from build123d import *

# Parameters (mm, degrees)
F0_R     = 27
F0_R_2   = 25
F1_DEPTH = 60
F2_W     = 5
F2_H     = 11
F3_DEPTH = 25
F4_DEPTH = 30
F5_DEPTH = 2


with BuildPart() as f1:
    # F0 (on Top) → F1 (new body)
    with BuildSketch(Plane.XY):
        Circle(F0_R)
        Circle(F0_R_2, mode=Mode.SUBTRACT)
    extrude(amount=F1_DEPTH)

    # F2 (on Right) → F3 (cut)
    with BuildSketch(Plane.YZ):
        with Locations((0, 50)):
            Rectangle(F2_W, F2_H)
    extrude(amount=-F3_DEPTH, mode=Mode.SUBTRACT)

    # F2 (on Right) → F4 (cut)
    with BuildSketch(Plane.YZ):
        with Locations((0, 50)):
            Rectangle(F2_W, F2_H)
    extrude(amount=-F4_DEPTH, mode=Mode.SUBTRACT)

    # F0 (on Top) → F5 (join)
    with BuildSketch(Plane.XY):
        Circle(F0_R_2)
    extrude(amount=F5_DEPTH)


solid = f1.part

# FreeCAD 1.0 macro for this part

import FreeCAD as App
import Part
import Sketcher
Q = App.Units.Quantity


def add_polygon(sketch, points):
    """Adds a closed chain of lines whose ends are joined by coincident constraints."""
    first, n = sketch.GeometryCount, len(points)
    for a, b in zip(points, points[1:] + points[:1]):
        sketch.addGeometry(Part.LineSegment(App.Vector(*a, 0), App.Vector(*b, 0)), False)
    for i in range(n):
        sketch.addConstraint(Sketcher.Constraint("Coincident", first + i, 2, first + (i + 1) % n, 1))

doc = App.newDocument("Part")
body = doc.addObject("PartDesign::Body", "Body")

# Sketch on XY plane
sketch1 = body.newObject("Sketcher::SketchObject", "Sketch")
sketch1.AttachmentSupport = (doc.getObject("XY_Plane"), [""])
sketch1.MapMode = "FlatFace"
sketch1.addGeometry([
    Part.Circle(App.Vector(0, 0, 0), App.Vector(0, 0, 1), 27),
    Part.Circle(App.Vector(0, 0, 0), App.Vector(0, 0, 1), 25),
], False)
sketch1.addConstraint([
    Sketcher.Constraint("Coincident", 0, 3, -1, 1),
    Sketcher.Constraint("Coincident", 1, 3, -1, 1),
    Sketcher.Constraint("Diameter", 0, Q("54 mm")),
    Sketcher.Constraint("Diameter", 1, Q("50 mm")),
])
pad1 = body.newObject("PartDesign::Pad", "Pad")
pad1.Profile = sketch1
pad1.Length = 60

# Sketch on YZ plane
sketch2 = body.newObject("Sketcher::SketchObject", "Sketch001")
sketch2.AttachmentSupport = (doc.getObject("YZ_Plane"), [""])
sketch2.MapMode = "FlatFace"
add_polygon(sketch2, [(-2, 56), (-2, 44), (2, 44), (2, 56)])  # lines 0-3
sketch2.addConstraint([
    Sketcher.Constraint("Vertical", 0),
    Sketcher.Constraint("Horizontal", 1),
    Sketcher.Constraint("Vertical", 2),
    Sketcher.Constraint("Horizontal", 3),
    Sketcher.Constraint("DistanceX", 1, 1, 1, 2, Q("5 mm")),
    Sketcher.Constraint("DistanceY", 0, 2, 0, 1, Q("11 mm")),
    Sketcher.Constraint("DistanceX", 0, 2, -1, 1, Q("2.5 mm")),
    Sketcher.Constraint("DistanceY", -1, 1, 0, 2, Q("44.5 mm")),
])
pocket1 = body.newObject("PartDesign::Pocket", "Pocket")
pocket1.Profile = sketch2
pocket1.Length = 25

# Sketch on YZ plane
sketch3 = body.newObject("Sketcher::SketchObject", "Sketch002")
sketch3.AttachmentSupport = (doc.getObject("YZ_Plane"), [""])
sketch3.MapMode = "FlatFace"
add_polygon(sketch3, [(-2, 56), (-2, 44), (2, 44), (2, 56)])  # lines 0-3
sketch3.addConstraint([
    Sketcher.Constraint("Vertical", 0),
    Sketcher.Constraint("Horizontal", 1),
    Sketcher.Constraint("Vertical", 2),
    Sketcher.Constraint("Horizontal", 3),
    Sketcher.Constraint("DistanceX", 1, 1, 1, 2, Q("5 mm")),
    Sketcher.Constraint("DistanceY", 0, 2, 0, 1, Q("11 mm")),
    Sketcher.Constraint("DistanceX", 0, 2, -1, 1, Q("2.5 mm")),
    Sketcher.Constraint("DistanceY", -1, 1, 0, 2, Q("44.5 mm")),
])
pocket2 = body.newObject("PartDesign::Pocket", "Pocket001")
pocket2.Profile = sketch3
pocket2.Length = 30

# Sketch on XY plane
sketch4 = body.newObject("Sketcher::SketchObject", "Sketch003")
sketch4.AttachmentSupport = (doc.getObject("XY_Plane"), [""])
sketch4.MapMode = "FlatFace"
sketch4.addGeometry(Part.Circle(App.Vector(0, 0, 0), App.Vector(0, 0, 1), 25), False)
sketch4.addConstraint([
    Sketcher.Constraint("Coincident", 0, 3, -1, 1),
    Sketcher.Constraint("Diameter", 0, Q("50 mm")),
])
pad2 = body.newObject("PartDesign::Pad", "Pad001")
pad2.Profile = sketch4
pad2.Length = 2

doc.recompute()
